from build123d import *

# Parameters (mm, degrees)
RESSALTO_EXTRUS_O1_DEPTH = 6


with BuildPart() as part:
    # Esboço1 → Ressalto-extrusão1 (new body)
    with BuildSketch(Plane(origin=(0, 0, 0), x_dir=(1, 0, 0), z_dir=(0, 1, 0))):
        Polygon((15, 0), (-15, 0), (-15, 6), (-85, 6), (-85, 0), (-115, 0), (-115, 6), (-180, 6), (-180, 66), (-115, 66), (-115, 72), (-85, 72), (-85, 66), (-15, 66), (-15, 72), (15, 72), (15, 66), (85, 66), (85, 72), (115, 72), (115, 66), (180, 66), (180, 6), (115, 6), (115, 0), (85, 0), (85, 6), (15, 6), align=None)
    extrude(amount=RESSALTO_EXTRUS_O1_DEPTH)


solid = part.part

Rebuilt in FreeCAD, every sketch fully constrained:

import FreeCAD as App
import Part
import Sketcher
Q = App.Units.Quantity


def add_polygon(sketch, points):
    """Adds a closed chain of lines whose ends are joined by coincident constraints."""
    first, n = sketch.GeometryCount, len(points)
    for a, b in zip(points, points[1:] + points[:1]):
        sketch.addGeometry(Part.LineSegment(App.Vector(*a, 0), App.Vector(*b, 0)), False)
    for i in range(n):
        sketch.addConstraint(Sketcher.Constraint("Coincident", first + i, 2, first + (i + 1) % n, 1))

doc = App.newDocument("Part")
body = doc.addObject("PartDesign::Body", "Body")

sketch1 = body.newObject("Sketcher::SketchObject", "Sketch")
sketch1.AttachmentSupport = (doc.getObject("XZ_Plane"), [""])
sketch1.MapMode = "FlatFace"
add_polygon(sketch1, [(-15, 0), (15, 0), (15, -6), (85, -6), (85, 0), (115, 0), (115, -6), (180, -6), (180, -66), (115, -66), (115, -72), (85, -72), (85, -66), (15, -66), (15, -72), (-15, -72), (-15, -66), (-85, -66), (-85, -72), (-115, -72), (-115, -66), (-180, -66), (-180, -6), (-115, -6), (-115, 0), (-85, 0), (-85, -6), (-15, -6)])
sketch1.addConstraint([
    Sketcher.Constraint("Horizontal", 0),
    Sketcher.Constraint("Vertical", 1),
    Sketcher.Constraint("Horizontal", 2),
    Sketcher.Constraint("Vertical", 3),
    Sketcher.Constraint("Horizontal", 4),
    Sketcher.Constraint("Vertical", 5),
    Sketcher.Constraint("Horizontal", 6),
    Sketcher.Constraint("Vertical", 7),
    Sketcher.Constraint("Horizontal", 8),
    Sketcher.Constraint("Vertical", 9),
    Sketcher.Constraint("Horizontal", 10),
    Sketcher.Constraint("Vertical", 11),
    Sketcher.Constraint("Horizontal", 12),
    Sketcher.Constraint("Vertical", 13),
    Sketcher.Constraint("Horizontal", 14),
    Sketcher.Constraint("Vertical", 15),
    Sketcher.Constraint("Horizontal", 16),
    Sketcher.Constraint("Vertical", 17),
    Sketcher.Constraint("Horizontal", 18),
    Sketcher.Constraint("Vertical", 19),
    Sketcher.Constraint("Horizontal", 20),
    Sketcher.Constraint("Vertical", 21),
    Sketcher.Constraint("Horizontal", 22),
    Sketcher.Constraint("Vertical", 23),
    Sketcher.Constraint("Horizontal", 24),
    Sketcher.Constraint("Vertical", 25),
    Sketcher.Constraint("Horizontal", 26),
    Sketcher.Constraint("Vertical", 27),
    Sketcher.Constraint("Symmetric", 4, 2, 23, 2, -1, 1),
    Sketcher.Constraint("Symmetric", 0, 2, 27, 2, -1, 1),
    Sketcher.Constraint("Symmetric", 12, 2, 15, 2, -2),
    Sketcher.Constraint("Symmetric", 10, 2, 17, 2, -2),
    Sketcher.Constraint("Symmetric", 8, 2, 19, 2, -2),
    Sketcher.Constraint("Symmetric", 6, 2, 21, 2, -2),
    Sketcher.Constraint("Symmetric", 3, 2, 24, 2, -2),
    Sketcher.Constraint("Horizontal", 2, 2, 5, 2),
    Sketcher.Constraint("Horizontal", 8, 2, 11, 2),
    Sketcher.Constraint("Horizontal", 10, 2, 13, 2),
    Sketcher.Constraint("Horizontal", 22, 2, 25, 2),
    Sketcher.Constraint("Vertical", 5, 2, 8, 2),
    Sketcher.Constraint("Vertical", 3, 2, 10, 2),
    Sketcher.Constraint("Vertical", 1, 2, 12, 2),
    Sketcher.Constraint("Equal", 0, 4),
    Sketcher.Constraint("Equal", 5, 9),
    Sketcher.Constraint("DistanceX", 0, 1, 0, 2, Q("30 mm")),
    Sketcher.Constraint("DistanceX", 2, 1, 2, 2, Q("70 mm")),
    Sketcher.Constraint("DistanceX", 6, 1, 6, 2, Q("65 mm")),
    Sketcher.Constraint("DistanceY", 1, 2, 1, 1, Q("6 mm")),
    Sketcher.Constraint("DistanceY", 7, 2, 7, 1, Q("60 mm")),
])
pad1 = body.newObject("PartDesign::Pad", "Pad")
pad1.Profile = sketch1
pad1.Length = 6
pad1.Reversed = True

doc.recompute()
